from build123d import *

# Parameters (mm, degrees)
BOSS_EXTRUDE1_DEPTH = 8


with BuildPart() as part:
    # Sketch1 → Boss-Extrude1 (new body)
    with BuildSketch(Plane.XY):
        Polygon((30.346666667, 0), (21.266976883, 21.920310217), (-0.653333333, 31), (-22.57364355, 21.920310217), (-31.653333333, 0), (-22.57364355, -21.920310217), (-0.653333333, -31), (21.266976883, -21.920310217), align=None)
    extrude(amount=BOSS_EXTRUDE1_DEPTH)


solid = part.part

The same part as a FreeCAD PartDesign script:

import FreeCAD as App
import Part
import Sketcher
from FreeCAD import Vector
Q = App.Units.Quantity

doc = App.newDocument("Part")
body = doc.addObject("PartDesign::Body", "Body")

# Sketch on XY plane
sketch1 = body.newObject("Sketcher::SketchObject", "Sketch")
sketch1.AttachmentSupport = (doc.getObject("XY_Plane"), [""])
sketch1.MapMode = "FlatFace"
sketch1.addGeometry([
    Part.LineSegment(Vector(30, 0, 0), Vector(21, 22, 0)),  # 0
    Part.LineSegment(Vector(21, 22, 0), Vector(-1, 31, 0)),  # 1
    Part.LineSegment(Vector(-1, 31, 0), Vector(-23, 22, 0)),  # 2
    Part.LineSegment(Vector(-23, 22, 0), Vector(-32, 0, 0)),  # 3
    Part.LineSegment(Vector(-32, 0, 0), Vector(-23, -22, 0)),  # 4
    Part.LineSegment(Vector(-23, -22, 0), Vector(-1, -31, 0)),  # 5
    Part.LineSegment(Vector(-1, -31, 0), Vector(21, -22, 0)),  # 6
    Part.LineSegment(Vector(21, -22, 0), Vector(30, 0, 0)),  # 7
], False)
sketch1.addConstraint([
    Sketcher.Constraint("Coincident", 0, 2, 1, 1),
    Sketcher.Constraint("Coincident", 1, 2, 2, 1),
    Sketcher.Constraint("Coincident", 2, 2, 3, 1),
    Sketcher.Constraint("Coincident", 3, 2, 4, 1),
    Sketcher.Constraint("Coincident", 4, 2, 5, 1),
    Sketcher.Constraint("Coincident", 5, 2, 6, 1),
    Sketcher.Constraint("Coincident", 6, 2, 7, 1),
    Sketcher.Constraint("Coincident", 7, 2, 0, 1),
    Sketcher.Constraint("Symmetric", 2, 2, 4, 2, -1),
    Sketcher.Constraint("Symmetric", 1, 2, 5, 2, -1),
    Sketcher.Constraint("Symmetric", 0, 2, 6, 2, -1),
    Sketcher.Constraint("PointOnObject", 3, 2, -1),
    Sketcher.Constraint("PointOnObject", 7, 2, -1),
    Sketcher.Constraint("Perpendicular", 0, 2),
    Sketcher.Constraint("Perpendicular", 1, 3),
    Sketcher.Constraint("Perpendicular", 2, 4),
    Sketcher.Constraint("Horizontal", 0, 2, 2, 2),
    Sketcher.Constraint("Equal", 0, 1),
    Sketcher.Constraint("DistanceY", -1, 1, 1, 2, Q("31 mm")),
    Sketcher.Constraint("Angle", 0, Q("112.5 deg")),
    Sketcher.Constraint("DistanceX", -1, 1, 0, 2, Q("21.266977 mm")),
])
pad1 = body.newObject("PartDesign::Pad", "Pad")
pad1.Profile = sketch1
pad1.Length = 8

doc.recompute()
